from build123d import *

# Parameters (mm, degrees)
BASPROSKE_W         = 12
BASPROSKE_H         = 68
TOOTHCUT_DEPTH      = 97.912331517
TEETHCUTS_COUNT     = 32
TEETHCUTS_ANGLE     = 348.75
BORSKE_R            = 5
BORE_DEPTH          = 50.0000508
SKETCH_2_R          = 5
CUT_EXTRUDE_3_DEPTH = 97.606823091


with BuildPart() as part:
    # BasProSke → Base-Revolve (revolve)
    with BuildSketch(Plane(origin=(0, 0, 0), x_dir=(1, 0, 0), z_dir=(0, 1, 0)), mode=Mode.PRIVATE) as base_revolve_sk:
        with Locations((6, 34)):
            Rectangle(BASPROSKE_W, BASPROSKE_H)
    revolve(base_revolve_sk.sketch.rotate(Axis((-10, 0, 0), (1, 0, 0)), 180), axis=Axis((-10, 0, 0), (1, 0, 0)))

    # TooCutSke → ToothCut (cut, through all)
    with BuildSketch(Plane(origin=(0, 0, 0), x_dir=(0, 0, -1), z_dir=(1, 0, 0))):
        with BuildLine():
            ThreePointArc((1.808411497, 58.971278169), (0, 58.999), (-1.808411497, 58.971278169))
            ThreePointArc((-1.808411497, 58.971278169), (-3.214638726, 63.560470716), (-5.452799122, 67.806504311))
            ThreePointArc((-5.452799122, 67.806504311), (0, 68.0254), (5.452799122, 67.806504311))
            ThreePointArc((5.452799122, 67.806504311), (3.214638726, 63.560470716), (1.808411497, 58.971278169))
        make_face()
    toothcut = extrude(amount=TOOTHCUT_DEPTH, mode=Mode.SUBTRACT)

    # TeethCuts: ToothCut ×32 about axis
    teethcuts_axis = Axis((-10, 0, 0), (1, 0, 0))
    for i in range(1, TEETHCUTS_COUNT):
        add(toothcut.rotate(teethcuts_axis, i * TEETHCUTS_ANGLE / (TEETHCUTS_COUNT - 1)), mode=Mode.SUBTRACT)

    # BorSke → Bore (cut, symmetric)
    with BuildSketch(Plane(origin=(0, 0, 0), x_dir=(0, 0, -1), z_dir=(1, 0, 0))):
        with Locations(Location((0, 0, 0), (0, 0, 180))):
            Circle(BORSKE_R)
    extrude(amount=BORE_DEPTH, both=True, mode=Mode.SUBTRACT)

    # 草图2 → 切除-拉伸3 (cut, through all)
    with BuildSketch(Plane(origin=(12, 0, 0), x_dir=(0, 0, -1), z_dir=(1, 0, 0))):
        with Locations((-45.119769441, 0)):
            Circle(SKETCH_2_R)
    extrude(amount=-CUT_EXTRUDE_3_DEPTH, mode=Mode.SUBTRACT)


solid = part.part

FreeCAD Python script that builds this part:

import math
import FreeCAD as App
import Part
import Sketcher

V = App.Vector
Q = App.Units.Quantity


def add_polygon(sketch, points):
    """Adds a closed chain of lines whose ends are joined by coincident constraints."""
    first, n = sketch.GeometryCount, len(points)
    for a, b in zip(points, points[1:] + points[:1]):
        sketch.addGeometry(Part.LineSegment(App.Vector(*a, 0), App.Vector(*b, 0)), False)
    for i in range(n):
        sketch.addConstraint(Sketcher.Constraint("Coincident", first + i, 2, first + (i + 1) % n, 1))

doc = App.newDocument("Part")
body = doc.addObject("PartDesign::Body", "Body")

sketch1 = body.newObject("Sketcher::SketchObject", "Sketch")
sketch1.AttachmentSupport = (doc.getObject("XZ_Plane"), [""])
sketch1.MapMode = "FlatFace"
add_polygon(sketch1, [(0, -68), (0, 0), (12, 0), (12, -68)])
sketch1.addConstraint(Sketcher.Constraint("Vertical", 0))
sketch1.addConstraint(Sketcher.Constraint("Horizontal", 1))
sketch1.addConstraint(Sketcher.Constraint("Vertical", 2))
sketch1.addConstraint(Sketcher.Constraint("Horizontal", 3))
sketch1.addConstraint(Sketcher.Constraint("Coincident", 0, 2, -1, 1))
sketch1.addConstraint(Sketcher.Constraint("DistanceX", 1, 1, 1, 2, Q("12 mm")))
sketch1.addConstraint(Sketcher.Constraint("DistanceY", 0, 1, 0, 2, Q("68 mm")))
revolution = body.newObject("PartDesign::Revolution", "Revolution")
revolution.Profile = sketch1
revolution.ReferenceAxis = (sketch1, ["H_Axis"])
revolution.Angle = 360

sketch2 = body.newObject("Sketcher::SketchObject", "Sketch001")
sketch2.AttachmentSupport = (doc.getObject("YZ_Plane"), [""])
sketch2.MapMode = "FlatFace"
sketch2.addGeometry(Part.ArcOfCircle(Part.Circle(V(0, 0, 0), V(0, 0, 1), 59), math.radians(-1.76), math.radians(1.76)), False)
sketch2.addGeometry(Part.ArcOfCircle(Part.Circle(V(53.8, -26.9, 0), V(0, 0, 1), 25.6), math.radians(57), math.radians(78)), False)
sketch2.addGeometry(Part.ArcOfCircle(Part.Circle(V(0, 0, 0), V(0, 0, 1), 68), math.radians(-4.6), math.radians(4.6)), False)
sketch2.addGeometry(Part.ArcOfCircle(Part.Circle(V(53.8, 26.9, 0), V(0, 0, 1), 25.6), math.radians(-78), math.radians(-57)), False)
sketch2.addConstraint(Sketcher.Constraint("Coincident", 0, 1, 1, 2))
sketch2.addConstraint(Sketcher.Constraint("Coincident", 1, 1, 2, 1))
sketch2.addConstraint(Sketcher.Constraint("Coincident", 2, 2, 3, 2))
sketch2.addConstraint(Sketcher.Constraint("Coincident", 3, 1, 0, 2))
sketch2.addConstraint(Sketcher.Constraint("Coincident", 0, 3, -1, 1))
sketch2.addConstraint(Sketcher.Constraint("Coincident", 2, 3, -1, 1))
sketch2.addConstraint(Sketcher.Constraint("Equal", 1, 3))
sketch2.addConstraint(Sketcher.Constraint("Symmetric", 1, 3, 3, 3, -1))
sketch2.addConstraint(Sketcher.Constraint("Radius", 1, Q("25.6 mm")))
sketch2.addConstraint(Sketcher.Constraint("Radius", 0, Q("58.999001 mm")))
sketch2.addConstraint(Sketcher.Constraint("Radius", 2, Q("68.0254 mm")))
sketch2.addConstraint(Sketcher.Constraint("DistanceY", 1, 1, -1, 1, Q("5.452799 mm")))
sketch2.addConstraint(Sketcher.Constraint("DistanceY", 1, 1, 3, 3, Q("32.333201 mm")))
pocket1 = body.newObject("PartDesign::Pocket", "Pocket")
pocket1.Profile = sketch2
pocket1.Type = "ThroughAll"
pocket1.Reversed = True
doc.recompute()

polarpattern = body.newObject("PartDesign::PolarPattern", "PolarPattern")
polarpattern.Originals = [pocket1]
polarpattern.Axis = (doc.getObject("X_Axis"), [""])
polarpattern.Angle = 360
polarpattern.Occurrences = 32
body.Tip = polarpattern

sketch3 = body.newObject("Sketcher::SketchObject", "Sketch002")
sketch3.AttachmentSupport = (doc.getObject("YZ_Plane"), [""])
sketch3.MapMode = "FlatFace"
sketch3.addGeometry(Part.Circle(V(0, 0, 0), V(0, 0, 1), 5), False)
sketch3.addConstraint(Sketcher.Constraint("Coincident", 0, 3, -1, 1))
sketch3.addConstraint(Sketcher.Constraint("Diameter", 0, Q("10 mm")))
pocket2 = body.newObject("PartDesign::Pocket", "Pocket001")
pocket2.Profile = sketch3
pocket2.Length = 100.000102
pocket2.Midplane = True

sketch4 = body.newObject("Sketcher::SketchObject", "Sketch003")
sketch4.AttachmentSupport = (doc.getObject("YZ_Plane"), [""])
sketch4.MapMode = "FlatFace"
sketch4.AttachmentOffset = App.Placement(V(0, 0, 12), App.Rotation())
sketch4.addGeometry(Part.Circle(V(0, 45, 0), V(0, 0, 1), 5), False)
sketch4.addConstraint(Sketcher.Constraint("PointOnObject", 0, 3, -2))
sketch4.addConstraint(Sketcher.Constraint("Diameter", 0, Q("10 mm")))
sketch4.addConstraint(Sketcher.Constraint("DistanceY", -1, 1, 0, 3, Q("45.119769 mm")))
pocket3 = body.newObject("PartDesign::Pocket", "Pocket002")
pocket3.Profile = sketch4
pocket3.Type = "ThroughAll"

doc.recompute()
